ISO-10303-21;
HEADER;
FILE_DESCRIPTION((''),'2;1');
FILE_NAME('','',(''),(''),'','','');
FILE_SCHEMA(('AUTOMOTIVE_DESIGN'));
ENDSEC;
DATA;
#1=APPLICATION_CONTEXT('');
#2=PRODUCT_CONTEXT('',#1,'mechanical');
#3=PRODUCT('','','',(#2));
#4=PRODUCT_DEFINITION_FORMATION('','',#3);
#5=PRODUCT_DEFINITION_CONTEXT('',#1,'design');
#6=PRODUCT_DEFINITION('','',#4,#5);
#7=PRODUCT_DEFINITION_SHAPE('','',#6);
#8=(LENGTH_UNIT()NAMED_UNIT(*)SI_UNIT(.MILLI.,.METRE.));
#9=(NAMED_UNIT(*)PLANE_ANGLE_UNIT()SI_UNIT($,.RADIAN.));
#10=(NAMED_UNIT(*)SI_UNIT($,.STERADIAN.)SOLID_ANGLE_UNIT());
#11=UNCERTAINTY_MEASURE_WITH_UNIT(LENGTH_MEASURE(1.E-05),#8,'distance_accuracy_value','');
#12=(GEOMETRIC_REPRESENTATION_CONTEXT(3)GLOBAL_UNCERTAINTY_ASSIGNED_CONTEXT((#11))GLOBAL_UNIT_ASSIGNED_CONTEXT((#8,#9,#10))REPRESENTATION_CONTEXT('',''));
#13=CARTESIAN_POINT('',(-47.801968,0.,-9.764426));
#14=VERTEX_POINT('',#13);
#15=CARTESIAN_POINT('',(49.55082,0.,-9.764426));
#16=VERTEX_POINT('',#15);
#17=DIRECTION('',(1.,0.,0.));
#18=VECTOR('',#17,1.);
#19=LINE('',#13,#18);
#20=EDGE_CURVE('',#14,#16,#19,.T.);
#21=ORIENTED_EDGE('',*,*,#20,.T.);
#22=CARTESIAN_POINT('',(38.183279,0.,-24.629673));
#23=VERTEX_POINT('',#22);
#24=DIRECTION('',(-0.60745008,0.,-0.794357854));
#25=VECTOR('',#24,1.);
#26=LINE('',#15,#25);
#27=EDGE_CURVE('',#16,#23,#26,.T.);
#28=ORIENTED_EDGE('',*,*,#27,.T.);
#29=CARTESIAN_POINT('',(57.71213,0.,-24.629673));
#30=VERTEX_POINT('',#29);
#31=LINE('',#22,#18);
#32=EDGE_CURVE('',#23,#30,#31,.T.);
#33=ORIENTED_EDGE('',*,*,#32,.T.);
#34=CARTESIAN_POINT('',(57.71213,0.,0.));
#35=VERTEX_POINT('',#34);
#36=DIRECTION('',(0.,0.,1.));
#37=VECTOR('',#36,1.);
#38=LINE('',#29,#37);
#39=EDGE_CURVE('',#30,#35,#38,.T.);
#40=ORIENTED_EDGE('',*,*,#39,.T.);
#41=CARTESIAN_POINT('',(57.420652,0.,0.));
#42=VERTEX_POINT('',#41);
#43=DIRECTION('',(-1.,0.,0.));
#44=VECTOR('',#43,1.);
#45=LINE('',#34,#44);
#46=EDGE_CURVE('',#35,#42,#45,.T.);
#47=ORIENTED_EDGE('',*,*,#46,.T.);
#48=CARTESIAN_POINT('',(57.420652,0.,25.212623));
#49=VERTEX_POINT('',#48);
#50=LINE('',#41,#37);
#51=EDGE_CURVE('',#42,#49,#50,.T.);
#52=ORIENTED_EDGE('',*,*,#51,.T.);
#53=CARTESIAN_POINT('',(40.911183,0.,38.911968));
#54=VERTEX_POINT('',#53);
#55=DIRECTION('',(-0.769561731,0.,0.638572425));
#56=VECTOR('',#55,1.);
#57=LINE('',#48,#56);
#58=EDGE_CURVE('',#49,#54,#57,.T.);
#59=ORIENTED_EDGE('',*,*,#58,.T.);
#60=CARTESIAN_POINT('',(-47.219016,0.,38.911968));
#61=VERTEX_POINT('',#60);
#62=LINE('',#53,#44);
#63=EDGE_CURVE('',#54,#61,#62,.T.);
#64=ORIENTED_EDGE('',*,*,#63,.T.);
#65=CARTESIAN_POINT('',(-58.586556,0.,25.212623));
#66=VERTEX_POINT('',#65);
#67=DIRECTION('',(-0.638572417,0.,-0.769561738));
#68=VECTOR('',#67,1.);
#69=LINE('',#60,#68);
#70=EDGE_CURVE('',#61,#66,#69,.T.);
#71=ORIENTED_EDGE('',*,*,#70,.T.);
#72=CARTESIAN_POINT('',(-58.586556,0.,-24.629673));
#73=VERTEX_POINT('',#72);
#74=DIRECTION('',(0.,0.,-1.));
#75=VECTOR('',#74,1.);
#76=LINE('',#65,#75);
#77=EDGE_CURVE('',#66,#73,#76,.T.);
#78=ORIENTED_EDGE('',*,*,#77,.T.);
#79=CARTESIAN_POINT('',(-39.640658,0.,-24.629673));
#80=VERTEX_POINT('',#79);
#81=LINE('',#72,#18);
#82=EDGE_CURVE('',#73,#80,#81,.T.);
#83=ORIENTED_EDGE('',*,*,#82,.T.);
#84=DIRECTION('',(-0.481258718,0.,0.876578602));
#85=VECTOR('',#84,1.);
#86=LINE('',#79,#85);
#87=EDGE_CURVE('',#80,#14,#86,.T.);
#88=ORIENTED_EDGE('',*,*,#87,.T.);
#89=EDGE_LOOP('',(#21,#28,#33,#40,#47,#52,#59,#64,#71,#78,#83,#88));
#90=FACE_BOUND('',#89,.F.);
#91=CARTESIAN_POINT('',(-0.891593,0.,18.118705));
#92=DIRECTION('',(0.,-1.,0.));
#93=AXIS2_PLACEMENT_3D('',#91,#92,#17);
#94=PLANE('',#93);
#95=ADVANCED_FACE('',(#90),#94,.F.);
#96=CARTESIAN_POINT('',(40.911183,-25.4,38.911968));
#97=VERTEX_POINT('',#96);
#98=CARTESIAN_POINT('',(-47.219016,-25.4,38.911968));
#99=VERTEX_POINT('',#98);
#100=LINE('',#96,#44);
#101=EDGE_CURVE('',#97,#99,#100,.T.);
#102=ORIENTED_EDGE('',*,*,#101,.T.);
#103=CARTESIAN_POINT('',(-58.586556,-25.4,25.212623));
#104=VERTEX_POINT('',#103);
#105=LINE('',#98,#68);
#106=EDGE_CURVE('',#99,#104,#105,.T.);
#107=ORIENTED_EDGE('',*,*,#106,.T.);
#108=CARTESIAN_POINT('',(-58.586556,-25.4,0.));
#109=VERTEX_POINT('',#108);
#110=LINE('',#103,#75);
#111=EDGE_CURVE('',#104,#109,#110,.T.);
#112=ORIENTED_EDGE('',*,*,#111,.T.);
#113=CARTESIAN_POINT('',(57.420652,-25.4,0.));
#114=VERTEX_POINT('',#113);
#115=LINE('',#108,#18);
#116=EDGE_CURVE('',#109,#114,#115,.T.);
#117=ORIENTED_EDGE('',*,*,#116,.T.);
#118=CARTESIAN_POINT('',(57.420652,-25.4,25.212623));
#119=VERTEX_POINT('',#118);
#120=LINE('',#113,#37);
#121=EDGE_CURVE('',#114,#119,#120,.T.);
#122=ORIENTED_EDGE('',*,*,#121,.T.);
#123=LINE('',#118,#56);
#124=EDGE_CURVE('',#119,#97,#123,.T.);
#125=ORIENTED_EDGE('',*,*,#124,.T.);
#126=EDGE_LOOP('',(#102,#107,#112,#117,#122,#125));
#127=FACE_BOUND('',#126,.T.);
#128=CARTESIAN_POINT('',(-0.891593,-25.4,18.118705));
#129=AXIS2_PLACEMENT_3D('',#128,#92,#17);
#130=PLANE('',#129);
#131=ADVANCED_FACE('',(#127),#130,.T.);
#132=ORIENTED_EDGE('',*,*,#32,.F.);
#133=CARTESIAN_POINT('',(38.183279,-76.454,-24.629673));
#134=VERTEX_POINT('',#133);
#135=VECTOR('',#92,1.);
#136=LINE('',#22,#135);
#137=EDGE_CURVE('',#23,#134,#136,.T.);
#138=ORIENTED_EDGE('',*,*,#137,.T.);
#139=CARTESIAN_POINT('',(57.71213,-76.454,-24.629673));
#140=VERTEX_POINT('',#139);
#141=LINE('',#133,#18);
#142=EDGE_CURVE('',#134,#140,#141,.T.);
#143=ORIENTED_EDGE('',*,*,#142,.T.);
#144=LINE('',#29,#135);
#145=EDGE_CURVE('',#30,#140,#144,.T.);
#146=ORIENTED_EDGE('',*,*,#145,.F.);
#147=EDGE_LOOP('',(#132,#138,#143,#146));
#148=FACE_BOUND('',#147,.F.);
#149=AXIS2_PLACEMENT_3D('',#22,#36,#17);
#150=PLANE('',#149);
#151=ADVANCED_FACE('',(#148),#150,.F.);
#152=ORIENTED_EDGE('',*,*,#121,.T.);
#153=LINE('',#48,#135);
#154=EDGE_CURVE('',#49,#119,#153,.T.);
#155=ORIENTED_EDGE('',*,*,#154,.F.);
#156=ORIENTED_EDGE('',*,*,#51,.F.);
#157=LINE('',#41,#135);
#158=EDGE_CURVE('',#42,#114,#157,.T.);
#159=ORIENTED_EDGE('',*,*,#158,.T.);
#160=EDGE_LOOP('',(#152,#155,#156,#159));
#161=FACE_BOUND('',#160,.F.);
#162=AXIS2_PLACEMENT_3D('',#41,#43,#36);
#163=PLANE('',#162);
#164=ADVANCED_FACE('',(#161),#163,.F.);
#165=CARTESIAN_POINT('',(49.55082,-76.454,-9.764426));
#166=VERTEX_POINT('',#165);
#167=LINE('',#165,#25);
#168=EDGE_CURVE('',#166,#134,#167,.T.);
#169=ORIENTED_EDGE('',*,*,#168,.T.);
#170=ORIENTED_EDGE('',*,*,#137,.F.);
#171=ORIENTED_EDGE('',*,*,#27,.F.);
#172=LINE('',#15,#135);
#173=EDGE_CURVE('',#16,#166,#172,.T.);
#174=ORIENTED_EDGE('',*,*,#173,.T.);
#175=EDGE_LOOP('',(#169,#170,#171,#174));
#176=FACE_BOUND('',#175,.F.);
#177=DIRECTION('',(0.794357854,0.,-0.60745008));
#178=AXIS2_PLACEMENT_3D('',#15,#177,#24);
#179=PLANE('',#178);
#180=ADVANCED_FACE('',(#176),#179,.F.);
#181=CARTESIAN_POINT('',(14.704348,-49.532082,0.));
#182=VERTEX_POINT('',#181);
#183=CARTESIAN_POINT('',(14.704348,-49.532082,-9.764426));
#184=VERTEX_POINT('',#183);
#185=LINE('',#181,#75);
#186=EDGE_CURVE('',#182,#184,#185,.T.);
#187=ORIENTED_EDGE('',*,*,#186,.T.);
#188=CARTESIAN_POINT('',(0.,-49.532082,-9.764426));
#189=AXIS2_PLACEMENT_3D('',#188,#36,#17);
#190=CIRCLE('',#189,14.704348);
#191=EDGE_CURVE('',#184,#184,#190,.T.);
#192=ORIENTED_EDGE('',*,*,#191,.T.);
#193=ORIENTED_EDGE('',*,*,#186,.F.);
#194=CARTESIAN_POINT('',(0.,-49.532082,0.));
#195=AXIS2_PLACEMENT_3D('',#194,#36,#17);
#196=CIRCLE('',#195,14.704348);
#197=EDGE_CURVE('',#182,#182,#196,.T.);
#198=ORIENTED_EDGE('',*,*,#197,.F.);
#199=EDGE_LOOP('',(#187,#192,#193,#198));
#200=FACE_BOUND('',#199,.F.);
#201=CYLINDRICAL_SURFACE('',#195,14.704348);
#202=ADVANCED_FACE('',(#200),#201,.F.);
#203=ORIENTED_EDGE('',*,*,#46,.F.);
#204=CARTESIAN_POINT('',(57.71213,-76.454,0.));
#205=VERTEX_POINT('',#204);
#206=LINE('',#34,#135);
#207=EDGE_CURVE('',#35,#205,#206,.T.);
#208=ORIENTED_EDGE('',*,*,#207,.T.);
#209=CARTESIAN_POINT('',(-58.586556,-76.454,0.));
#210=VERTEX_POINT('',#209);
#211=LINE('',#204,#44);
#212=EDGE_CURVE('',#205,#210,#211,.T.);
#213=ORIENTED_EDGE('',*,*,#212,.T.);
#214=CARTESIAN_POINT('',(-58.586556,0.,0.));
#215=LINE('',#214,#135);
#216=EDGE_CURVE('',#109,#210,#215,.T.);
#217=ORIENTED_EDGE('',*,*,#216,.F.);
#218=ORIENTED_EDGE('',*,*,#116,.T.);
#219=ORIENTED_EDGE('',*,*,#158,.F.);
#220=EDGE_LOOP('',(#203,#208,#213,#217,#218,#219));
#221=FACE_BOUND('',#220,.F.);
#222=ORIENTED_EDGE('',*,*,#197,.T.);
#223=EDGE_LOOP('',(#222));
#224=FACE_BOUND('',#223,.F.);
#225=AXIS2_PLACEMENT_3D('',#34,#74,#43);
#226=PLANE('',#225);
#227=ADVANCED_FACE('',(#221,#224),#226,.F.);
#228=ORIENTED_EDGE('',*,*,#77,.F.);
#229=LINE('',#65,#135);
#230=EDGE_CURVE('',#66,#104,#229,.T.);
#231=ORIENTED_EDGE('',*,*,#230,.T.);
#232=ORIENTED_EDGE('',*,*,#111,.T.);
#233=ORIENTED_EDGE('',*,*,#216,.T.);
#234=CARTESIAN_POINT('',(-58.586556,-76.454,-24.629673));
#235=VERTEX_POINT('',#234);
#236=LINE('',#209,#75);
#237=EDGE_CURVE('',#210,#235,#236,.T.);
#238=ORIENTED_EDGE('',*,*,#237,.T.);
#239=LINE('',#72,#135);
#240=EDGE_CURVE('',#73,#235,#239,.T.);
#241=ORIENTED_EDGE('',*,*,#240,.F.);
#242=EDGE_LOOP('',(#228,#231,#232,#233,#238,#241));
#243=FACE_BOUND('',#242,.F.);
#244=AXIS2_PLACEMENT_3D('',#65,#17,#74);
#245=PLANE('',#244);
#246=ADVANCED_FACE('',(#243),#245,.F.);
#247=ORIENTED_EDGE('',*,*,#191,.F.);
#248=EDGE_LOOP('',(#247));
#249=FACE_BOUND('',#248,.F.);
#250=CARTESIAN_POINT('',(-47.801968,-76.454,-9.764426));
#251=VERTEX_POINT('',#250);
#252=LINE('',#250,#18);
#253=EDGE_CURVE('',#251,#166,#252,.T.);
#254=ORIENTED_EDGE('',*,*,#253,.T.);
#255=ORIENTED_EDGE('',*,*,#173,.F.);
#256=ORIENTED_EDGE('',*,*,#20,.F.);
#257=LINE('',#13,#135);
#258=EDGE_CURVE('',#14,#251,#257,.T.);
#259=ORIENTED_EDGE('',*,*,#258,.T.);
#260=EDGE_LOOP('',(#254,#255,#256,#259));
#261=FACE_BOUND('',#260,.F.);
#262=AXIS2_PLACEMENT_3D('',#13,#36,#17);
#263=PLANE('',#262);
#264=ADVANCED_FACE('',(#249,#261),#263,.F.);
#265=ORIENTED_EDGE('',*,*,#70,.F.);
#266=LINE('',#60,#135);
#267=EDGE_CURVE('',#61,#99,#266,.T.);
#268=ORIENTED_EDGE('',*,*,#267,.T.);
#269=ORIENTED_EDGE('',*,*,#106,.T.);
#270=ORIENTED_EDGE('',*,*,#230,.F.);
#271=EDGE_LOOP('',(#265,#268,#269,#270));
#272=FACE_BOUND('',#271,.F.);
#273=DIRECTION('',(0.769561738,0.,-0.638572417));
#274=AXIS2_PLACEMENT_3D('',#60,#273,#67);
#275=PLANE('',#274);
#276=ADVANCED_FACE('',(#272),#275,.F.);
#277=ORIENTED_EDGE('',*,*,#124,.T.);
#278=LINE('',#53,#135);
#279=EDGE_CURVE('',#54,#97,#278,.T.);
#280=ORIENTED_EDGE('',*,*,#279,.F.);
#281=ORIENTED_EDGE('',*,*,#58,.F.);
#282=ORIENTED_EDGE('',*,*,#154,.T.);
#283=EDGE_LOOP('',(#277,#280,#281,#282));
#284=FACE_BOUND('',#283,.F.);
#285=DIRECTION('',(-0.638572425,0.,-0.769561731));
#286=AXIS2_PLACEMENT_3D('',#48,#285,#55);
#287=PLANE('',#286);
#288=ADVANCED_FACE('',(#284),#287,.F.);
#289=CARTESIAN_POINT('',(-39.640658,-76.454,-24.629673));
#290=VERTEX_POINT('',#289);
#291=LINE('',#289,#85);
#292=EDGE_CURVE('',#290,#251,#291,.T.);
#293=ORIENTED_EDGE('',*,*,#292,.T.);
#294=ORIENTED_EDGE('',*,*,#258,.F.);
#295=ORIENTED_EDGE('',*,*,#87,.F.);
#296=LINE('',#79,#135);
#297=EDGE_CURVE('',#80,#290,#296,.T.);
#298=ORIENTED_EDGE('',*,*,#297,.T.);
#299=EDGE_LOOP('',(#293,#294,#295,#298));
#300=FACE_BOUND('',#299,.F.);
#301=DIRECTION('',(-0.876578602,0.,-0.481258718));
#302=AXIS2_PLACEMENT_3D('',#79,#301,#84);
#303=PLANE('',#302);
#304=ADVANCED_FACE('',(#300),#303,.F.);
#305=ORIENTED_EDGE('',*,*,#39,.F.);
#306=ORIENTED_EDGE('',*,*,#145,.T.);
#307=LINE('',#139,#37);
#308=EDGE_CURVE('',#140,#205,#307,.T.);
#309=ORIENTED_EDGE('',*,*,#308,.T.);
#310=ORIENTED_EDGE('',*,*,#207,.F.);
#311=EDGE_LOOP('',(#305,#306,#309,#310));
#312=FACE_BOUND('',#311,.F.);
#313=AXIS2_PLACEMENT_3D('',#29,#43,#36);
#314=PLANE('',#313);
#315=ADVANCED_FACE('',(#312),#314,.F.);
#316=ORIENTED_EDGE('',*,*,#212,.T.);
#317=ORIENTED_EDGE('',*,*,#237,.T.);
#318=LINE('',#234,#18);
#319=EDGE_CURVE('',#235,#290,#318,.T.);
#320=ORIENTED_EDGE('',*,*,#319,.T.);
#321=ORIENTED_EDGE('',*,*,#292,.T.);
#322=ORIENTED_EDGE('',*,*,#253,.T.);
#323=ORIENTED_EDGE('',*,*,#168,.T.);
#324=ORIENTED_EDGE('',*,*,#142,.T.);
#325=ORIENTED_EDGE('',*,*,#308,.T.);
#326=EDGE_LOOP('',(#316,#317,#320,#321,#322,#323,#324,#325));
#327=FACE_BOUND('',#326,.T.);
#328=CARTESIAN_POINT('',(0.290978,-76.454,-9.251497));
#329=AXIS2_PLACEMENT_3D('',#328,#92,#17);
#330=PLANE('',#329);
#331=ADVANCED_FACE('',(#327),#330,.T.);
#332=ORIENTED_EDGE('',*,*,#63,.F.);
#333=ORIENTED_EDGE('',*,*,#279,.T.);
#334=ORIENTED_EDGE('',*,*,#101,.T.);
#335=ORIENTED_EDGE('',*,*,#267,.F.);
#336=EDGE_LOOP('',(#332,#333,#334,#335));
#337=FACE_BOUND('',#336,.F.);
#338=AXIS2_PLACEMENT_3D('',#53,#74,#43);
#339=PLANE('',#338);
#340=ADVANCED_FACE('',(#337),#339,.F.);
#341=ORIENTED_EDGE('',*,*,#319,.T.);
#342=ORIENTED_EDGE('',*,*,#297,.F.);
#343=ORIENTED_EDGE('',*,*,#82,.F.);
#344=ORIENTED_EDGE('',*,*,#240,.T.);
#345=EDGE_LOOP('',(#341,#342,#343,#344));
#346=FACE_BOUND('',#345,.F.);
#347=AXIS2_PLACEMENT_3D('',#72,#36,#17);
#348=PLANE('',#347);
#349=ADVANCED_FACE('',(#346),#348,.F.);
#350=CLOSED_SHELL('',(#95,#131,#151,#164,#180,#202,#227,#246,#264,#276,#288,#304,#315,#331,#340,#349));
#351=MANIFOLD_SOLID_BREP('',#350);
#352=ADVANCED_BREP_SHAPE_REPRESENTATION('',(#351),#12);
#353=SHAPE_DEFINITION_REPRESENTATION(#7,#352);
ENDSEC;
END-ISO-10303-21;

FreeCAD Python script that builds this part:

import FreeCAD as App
import Part
import Sketcher
from FreeCAD import Vector
Q = App.Units.Quantity

doc = App.newDocument("Part")
body = doc.addObject("PartDesign::Body", "Body")

# Sketch on XZ plane
sketch1 = doc.addObject("Sketcher::SketchObject", "Sketch")
body.addObject(sketch1)
sketch1.AttachmentSupport = (doc.XZ_Plane, [""])
sketch1.MapMode = "FlatFace"
sketch1.addGeometry([
    Part.LineSegment(Vector(58, 0, 0), Vector(-59, 0, 0)),  # 0
    Part.LineSegment(Vector(-59, 0, 0), Vector(-59, -25, 0)),  # 1
    Part.LineSegment(Vector(-59, -25, 0), Vector(-40, -25, 0)),  # 2
    Part.LineSegment(Vector(-40, -25, 0), Vector(-48, -10, 0)),  # 3
    Part.LineSegment(Vector(-48, -10, 0), Vector(50, -10, 0)),  # 4
    Part.LineSegment(Vector(50, -10, 0), Vector(38, -25, 0)),  # 5
    Part.LineSegment(Vector(38, -25, 0), Vector(58, -25, 0)),  # 6
    Part.LineSegment(Vector(58, -25, 0), Vector(58, 0, 0)),  # 7
], False)
sketch1.addConstraint([
    Sketcher.Constraint("Coincident", 0, 2, 1, 1),
    Sketcher.Constraint("Coincident", 1, 2, 2, 1),
    Sketcher.Constraint("Coincident", 2, 2, 3, 1),
    Sketcher.Constraint("Coincident", 3, 2, 4, 1),
    Sketcher.Constraint("Coincident", 4, 2, 5, 1),
    Sketcher.Constraint("Coincident", 5, 2, 6, 1),
    Sketcher.Constraint("Coincident", 6, 2, 7, 1),
    Sketcher.Constraint("Coincident", 7, 2, 0, 1),
    Sketcher.Constraint("Horizontal", 0),
    Sketcher.Constraint("Vertical", 1),
    Sketcher.Constraint("Horizontal", 2),
    Sketcher.Constraint("Horizontal", 4),
    Sketcher.Constraint("Horizontal", 6),
    Sketcher.Constraint("Vertical", 7),
    Sketcher.Constraint("PointOnObject", 0, 2, -1),
    Sketcher.Constraint("Horizontal", 2, 2, 5, 2),
    Sketcher.Constraint("DistanceX", 4, 1, 4, 2, Q("97.352788 mm")),
    Sketcher.Constraint("DistanceX", 6, 1, 6, 2, Q("19.528851 mm")),
    Sketcher.Constraint("DistanceX", 3, 2, 6, 2, Q("105.514098 mm")),
    Sketcher.Constraint("Distance", 3, Q("16.958259 mm")),
    Sketcher.Constraint("Distance", 5, Q("18.713539 mm")),
    Sketcher.Constraint("DistanceX", 0, 2, 0, 1, Q("116.298686 mm")),
    Sketcher.Constraint("DistanceY", 1, 2, 1, 1, Q("24.629673 mm")),
    Sketcher.Constraint("DistanceX", 2, 2, -1, 1, Q("39.640658 mm")),
])
pad1 = doc.addObject("PartDesign::Pad", "Pad")
body.addObject(pad1)
pad1.Profile = sketch1
pad1.Length = Q("3.01 in")

# Sketch on XZ plane
sketch2 = doc.addObject("Sketcher::SketchObject", "Sketch001")
body.addObject(sketch2)
sketch2.AttachmentSupport = (doc.XZ_Plane, [""])
sketch2.MapMode = "FlatFace"
sketch2.addGeometry([
    Part.LineSegment(Vector(-59, 25, 0), Vector(-59, 0, 0)),  # 0
    Part.LineSegment(Vector(-59, 0, 0), Vector(57, 0, 0)),  # 1
    Part.LineSegment(Vector(57, 0, 0), Vector(57, 25, 0)),  # 2
    Part.LineSegment(Vector(57, 25, 0), Vector(41, 39, 0)),  # 3
    Part.LineSegment(Vector(41, 39, 0), Vector(-47, 39, 0)),  # 4
    Part.LineSegment(Vector(-47, 39, 0), Vector(-59, 25, 0)),  # 5
], False)
sketch2.addConstraint([
    Sketcher.Constraint("Coincident", 0, 2, 1, 1),
    Sketcher.Constraint("Coincident", 1, 2, 2, 1),
    Sketcher.Constraint("Coincident", 2, 2, 3, 1),
    Sketcher.Constraint("Coincident", 3, 2, 4, 1),
    Sketcher.Constraint("Coincident", 4, 2, 5, 1),
    Sketcher.Constraint("Coincident", 5, 2, 0, 1),
    Sketcher.Constraint("Vertical", 0),
    Sketcher.Constraint("Horizontal", 1),
    Sketcher.Constraint("Vertical", 2),
    Sketcher.Constraint("Horizontal", 4),
    Sketcher.Constraint("PointOnObject", 0, 2, -1),
    Sketcher.Constraint("Perpendicular", 3, 5),
    Sketcher.Constraint("Horizontal", 2, 2, 5, 2),
    Sketcher.Constraint("DistanceX", 4, 2, 4, 1, Q("88.130199 mm")),
    Sketcher.Constraint("Distance", 3, Q("21.45308 mm")),
    Sketcher.Constraint("Distance", 5, Q("17.801489 mm")),
    Sketcher.Constraint("DistanceY", 0, 2, 0, 1, Q("25.212623 mm")),
    Sketcher.Constraint("DistanceX", -1, 1, 1, 2, Q("57.420652 mm")),
])
pad2 = doc.addObject("PartDesign::Pad", "Pad001")
body.addObject(pad2)
pad2.Profile = sketch2
pad2.Length = Q("1 in")

# Sketch on XY plane
sketch3 = doc.addObject("Sketcher::SketchObject", "Sketch002")
body.addObject(sketch3)
sketch3.AttachmentSupport = (doc.XY_Plane, [""])
sketch3.MapMode = "FlatFace"
sketch3.addGeometry(Part.Circle(Vector(0, -50, 0), Vector(0, 0, 1), 15), False)
sketch3.addConstraint([
    Sketcher.Constraint("PointOnObject", 0, 3, -2),
    Sketcher.Constraint("Diameter", 0, Q("29.408696 mm")),
    Sketcher.Constraint("DistanceY", 0, 3, -1, 1, Q("49.532082 mm")),
])
pocket1 = doc.addObject("PartDesign::Pocket", "Pocket")
body.addObject(pocket1)
pocket1.Profile = sketch3
pocket1.Length = Q("1 in")

doc.recompute()
